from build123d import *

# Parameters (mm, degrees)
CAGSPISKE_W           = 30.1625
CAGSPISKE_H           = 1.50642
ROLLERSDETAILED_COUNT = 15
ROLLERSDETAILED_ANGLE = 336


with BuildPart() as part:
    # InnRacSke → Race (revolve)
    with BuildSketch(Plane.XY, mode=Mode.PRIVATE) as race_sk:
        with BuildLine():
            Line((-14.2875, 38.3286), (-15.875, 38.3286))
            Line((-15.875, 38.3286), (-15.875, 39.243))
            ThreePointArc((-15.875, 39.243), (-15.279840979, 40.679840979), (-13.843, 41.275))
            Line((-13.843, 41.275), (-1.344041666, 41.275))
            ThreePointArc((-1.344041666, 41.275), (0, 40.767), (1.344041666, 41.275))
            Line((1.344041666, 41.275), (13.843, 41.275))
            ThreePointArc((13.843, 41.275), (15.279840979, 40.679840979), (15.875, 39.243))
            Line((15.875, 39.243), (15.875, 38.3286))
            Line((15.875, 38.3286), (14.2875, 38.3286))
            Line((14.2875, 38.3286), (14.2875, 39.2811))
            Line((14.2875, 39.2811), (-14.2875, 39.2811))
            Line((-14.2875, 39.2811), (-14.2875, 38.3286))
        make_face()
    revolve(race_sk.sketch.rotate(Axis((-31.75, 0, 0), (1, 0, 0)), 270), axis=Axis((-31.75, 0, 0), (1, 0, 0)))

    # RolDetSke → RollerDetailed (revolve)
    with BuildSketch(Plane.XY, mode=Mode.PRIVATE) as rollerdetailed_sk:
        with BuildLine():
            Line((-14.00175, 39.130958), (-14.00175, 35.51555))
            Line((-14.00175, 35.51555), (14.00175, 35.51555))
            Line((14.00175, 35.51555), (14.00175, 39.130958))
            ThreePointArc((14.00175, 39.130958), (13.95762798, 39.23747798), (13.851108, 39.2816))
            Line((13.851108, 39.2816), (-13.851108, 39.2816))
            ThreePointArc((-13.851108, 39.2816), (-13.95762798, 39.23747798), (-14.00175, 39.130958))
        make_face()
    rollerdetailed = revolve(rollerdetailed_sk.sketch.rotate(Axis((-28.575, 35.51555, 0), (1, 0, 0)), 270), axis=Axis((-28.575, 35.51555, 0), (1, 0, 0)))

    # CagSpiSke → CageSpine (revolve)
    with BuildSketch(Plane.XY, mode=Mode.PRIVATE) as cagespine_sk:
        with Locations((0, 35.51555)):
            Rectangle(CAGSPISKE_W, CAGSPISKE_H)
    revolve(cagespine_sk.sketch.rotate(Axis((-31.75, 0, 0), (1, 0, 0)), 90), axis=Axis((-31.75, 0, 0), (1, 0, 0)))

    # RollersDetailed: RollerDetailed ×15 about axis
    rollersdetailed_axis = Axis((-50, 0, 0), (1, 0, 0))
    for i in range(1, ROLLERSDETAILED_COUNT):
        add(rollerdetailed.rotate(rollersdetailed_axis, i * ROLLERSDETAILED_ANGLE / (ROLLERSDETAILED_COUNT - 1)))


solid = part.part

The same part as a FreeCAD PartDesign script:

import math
import FreeCAD as App
import Part
import Sketcher
Q = App.Units.Quantity

doc = App.newDocument("Part")
params = doc.addObject("Spreadsheet::Sheet", "Params")
for row, (alias, value) in enumerate([
    ("sketch1_radius", "0.08 in"),
    ("sketch1_width", "0.0625 in"),
    ("sketch1_width2", "1.125 in"),
    ("sketch1_height", "0.036 in"),
    ("revolution_angle", "360 deg"),
    ("revolution2_angle", "360 deg"),
    ("sketch3_width", "1.1875 in"),
    ("revolution3_angle", "360 deg"),
], start=1):
    params.set(f"A{row}", alias)
    params.set(f"B{row}", "=" + value)
    params.setAlias(f"B{row}", alias)

body = doc.addObject("PartDesign::Body", "Body")

sketch1 = doc.addObject("Sketcher::SketchObject", "Sketch")
body.addObject(sketch1)
sketch1.AttachmentSupport = (doc.XY_Plane, [""])
sketch1.MapMode = "FlatFace"
sketch1.addGeometry(Part.LineSegment(App.Vector(-15.9, 38.3, 0), App.Vector(-14.3, 38.3, 0)), False)
sketch1.addGeometry(Part.LineSegment(App.Vector(-14.3, 38.3, 0), App.Vector(-14.3, 39.3, 0)), False)
sketch1.addGeometry(Part.LineSegment(App.Vector(-14.3, 39.3, 0), App.Vector(14.3, 39.3, 0)), False)
sketch1.addGeometry(Part.LineSegment(App.Vector(14.3, 39.3, 0), App.Vector(14.3, 38.3, 0)), False)
sketch1.addGeometry(Part.LineSegment(App.Vector(14.3, 38.3, 0), App.Vector(15.9, 38.3, 0)), False)
sketch1.addGeometry(Part.LineSegment(App.Vector(15.9, 38.3, 0), App.Vector(15.9, 39.2, 0)), False)
sketch1.addGeometry(Part.ArcOfCircle(Part.Circle(App.Vector(13.8, 39.2, 0), App.Vector(0, 0, 1), 2), math.radians(0), math.radians(90)), False)
sketch1.addGeometry(Part.LineSegment(App.Vector(13.8, 41.3, 0), App.Vector(1.3, 41.3, 0)), False)
sketch1.addGeometry(Part.ArcOfCircle(Part.Circle(App.Vector(0, 42.8, 0), App.Vector(0, 0, 1), 2), math.radians(-131), math.radians(-49)), False)
sketch1.addGeometry(Part.LineSegment(App.Vector(-1.3, 41.3, 0), App.Vector(-13.8, 41.3, 0)), False)
sketch1.addGeometry(Part.ArcOfCircle(Part.Circle(App.Vector(-13.8, 39.2, 0), App.Vector(0, 0, 1), 2), math.radians(90), math.radians(180)), False)
sketch1.addGeometry(Part.LineSegment(App.Vector(-15.9, 39.2, 0), App.Vector(-15.9, 38.3, 0)), False)
sketch1.addConstraint(Sketcher.Constraint("Coincident", 0, 2, 1, 1))
sketch1.addConstraint(Sketcher.Constraint("Coincident", 1, 2, 2, 1))
sketch1.addConstraint(Sketcher.Constraint("Coincident", 2, 2, 3, 1))
sketch1.addConstraint(Sketcher.Constraint("Coincident", 3, 2, 4, 1))
sketch1.addConstraint(Sketcher.Constraint("Coincident", 4, 2, 5, 1))
sketch1.addConstraint(Sketcher.Constraint("Tangent", 5, 2, 6, 1))
sketch1.addConstraint(Sketcher.Constraint("Tangent", 6, 2, 7, 1))
sketch1.addConstraint(Sketcher.Constraint("Coincident", 7, 2, 8, 2))
sketch1.addConstraint(Sketcher.Constraint("Coincident", 8, 1, 9, 1))
sketch1.addConstraint(Sketcher.Constraint("Tangent", 9, 2, 10, 1))
sketch1.addConstraint(Sketcher.Constraint("Tangent", 10, 2, 11, 1))
sketch1.addConstraint(Sketcher.Constraint("Coincident", 11, 2, 0, 1))
sketch1.addConstraint(Sketcher.Constraint("Horizontal", 0))
sketch1.addConstraint(Sketcher.Constraint("Vertical", 1))
sketch1.addConstraint(Sketcher.Constraint("Horizontal", 2))
sketch1.addConstraint(Sketcher.Constraint("Vertical", 3))
sketch1.addConstraint(Sketcher.Constraint("Horizontal", 4))
sketch1.addConstraint(Sketcher.Constraint("Vertical", 5))
sketch1.addConstraint(Sketcher.Constraint("Horizontal", 7))
sketch1.addConstraint(Sketcher.Constraint("Horizontal", 9))
sketch1.addConstraint(Sketcher.Constraint("Vertical", 11))
sketch1.addConstraint(Sketcher.Constraint("Equal", 6, 8))
sketch1.addConstraint(Sketcher.Constraint("Equal", 8, 10))
sketch1.addConstraint(Sketcher.Constraint("Symmetric", 6, 3, 10, 3, -2))
sketch1.addConstraint(Sketcher.Constraint("Symmetric", 0, 2, 3, 2, -2))
sketch1.addConstraint(Sketcher.Constraint("PointOnObject", 8, 3, -2))
sketch1.addConstraint(Sketcher.Constraint("Radius", 6, Q("0.08 in")))
sketch1.addConstraint(Sketcher.Constraint("DistanceX", 0, 1, 0, 2, Q("0.0625 in")))
sketch1.addConstraint(Sketcher.Constraint("DistanceX", 2, 1, 2, 2, Q("1.125 in")))
sketch1.addConstraint(Sketcher.Constraint("DistanceY", 5, 1, 5, 2, Q("0.036 in")))
sketch1.addConstraint(Sketcher.Constraint("DistanceY", 6, 3, 8, 3, Q("0.14 in")))
sketch1.addConstraint(Sketcher.Constraint("DistanceY", 1, 1, 1, 2, Q("0.0375 in")))
sketch1.addConstraint(Sketcher.Constraint("DistanceY", -1, 1, 6, 3, Q("1.545 in")))
sketch1.setExpression("Constraints[26]", "Params.sketch1_radius")
sketch1.setExpression("Constraints[27]", "Params.sketch1_width")
sketch1.setExpression("Constraints[28]", "Params.sketch1_width2")
sketch1.setExpression("Constraints[29]", "Params.sketch1_height")
revolution = doc.addObject("PartDesign::Revolution", "Revolution")
body.addObject(revolution)
revolution.Profile = sketch1
revolution.ReferenceAxis = (sketch1, ["H_Axis"])
revolution.setExpression("Angle", "Params.revolution_angle")

sketch2 = doc.addObject("Sketcher::SketchObject", "Sketch001")
body.addObject(sketch2)
sketch2.AttachmentSupport = (doc.XY_Plane, [""])
sketch2.MapMode = "FlatFace"
sketch2.addGeometry(Part.LineSegment(App.Vector(-14, 39.13, 0), App.Vector(-14, 35.52, 0)), False)
sketch2.addGeometry(Part.LineSegment(App.Vector(-14, 35.52, 0), App.Vector(14, 35.52, 0)), False)
sketch2.addGeometry(Part.LineSegment(App.Vector(14, 35.52, 0), App.Vector(14, 39.13, 0)), False)
sketch2.addGeometry(Part.ArcOfCircle(Part.Circle(App.Vector(13.85, 39.13, 0), App.Vector(0, 0, 1), 0.15), math.radians(0), math.radians(90)), False)
sketch2.addGeometry(Part.LineSegment(App.Vector(13.85, 39.28, 0), App.Vector(-13.85, 39.28, 0)), False)
sketch2.addGeometry(Part.ArcOfCircle(Part.Circle(App.Vector(-13.85, 39.13, 0), App.Vector(0, 0, 1), 0.15), math.radians(90), math.radians(180)), False)
sketch2.addGeometry(Part.LineSegment(App.Vector(-14, 35.52, 0), App.Vector(14, 35.52, 0)), True)
sketch2.addConstraint(Sketcher.Constraint("Coincident", 0, 2, 1, 1))
sketch2.addConstraint(Sketcher.Constraint("Coincident", 1, 2, 2, 1))
sketch2.addConstraint(Sketcher.Constraint("Tangent", 2, 2, 3, 1))
sketch2.addConstraint(Sketcher.Constraint("Tangent", 3, 2, 4, 1))
sketch2.addConstraint(Sketcher.Constraint("Tangent", 4, 2, 5, 1))
sketch2.addConstraint(Sketcher.Constraint("Tangent", 5, 2, 0, 1))
sketch2.addConstraint(Sketcher.Constraint("Vertical", 0))
sketch2.addConstraint(Sketcher.Constraint("Horizontal", 1))
sketch2.addConstraint(Sketcher.Constraint("Vertical", 2))
sketch2.addConstraint(Sketcher.Constraint("Horizontal", 4))
sketch2.addConstraint(Sketcher.Constraint("Horizontal", 6))
sketch2.addConstraint(Sketcher.Constraint("Coincident", 6, 1, 0, 2))
sketch2.addConstraint(Sketcher.Constraint("Equal", 3, 5))
sketch2.addConstraint(Sketcher.Constraint("Vertical", 2, 2, 6, 2))
sketch2.addConstraint(Sketcher.Constraint("DistanceX", 1, 1, 1, 2, Q("1.1025 in")))
sketch2.addConstraint(Sketcher.Constraint("Radius", 3, Q("0.150642 mm")))
sketch2.addConstraint(Sketcher.Constraint("DistanceY", 0, 2, 0, 1, Q("3.615408 mm")))
sketch2.addConstraint(Sketcher.Constraint("DistanceY", -1, 1, 3, 2, Q("39.2816 mm")))
sketch2.addConstraint(Sketcher.Constraint("DistanceX", -1, 1, 3, 3, Q("13.851108 mm")))
revolution2 = doc.addObject("PartDesign::Revolution", "Revolution001")
body.addObject(revolution2)
revolution2.Profile = sketch2
revolution2.ReferenceAxis = (sketch2, ["Axis0"])
revolution2.setExpression("Angle", "Params.revolution2_angle")

sketch3 = doc.addObject("Sketcher::SketchObject", "Sketch002")
body.addObject(sketch3)
sketch3.AttachmentSupport = (doc.XY_Plane, [""])
sketch3.MapMode = "FlatFace"
sketch3.addGeometry(Part.LineSegment(App.Vector(-15.1, 36.3, 0), App.Vector(-15.1, 34.8, 0)), False)
sketch3.addGeometry(Part.LineSegment(App.Vector(-15.1, 34.8, 0), App.Vector(15.1, 34.8, 0)), False)
sketch3.addGeometry(Part.LineSegment(App.Vector(15.1, 34.8, 0), App.Vector(15.1, 36.3, 0)), False)
sketch3.addGeometry(Part.LineSegment(App.Vector(15.1, 36.3, 0), App.Vector(-15.1, 36.3, 0)), False)
sketch3.addConstraint(Sketcher.Constraint("Coincident", 0, 2, 1, 1))
sketch3.addConstraint(Sketcher.Constraint("Coincident", 1, 2, 2, 1))
sketch3.addConstraint(Sketcher.Constraint("Coincident", 2, 2, 3, 1))
sketch3.addConstraint(Sketcher.Constraint("Coincident", 3, 2, 0, 1))
sketch3.addConstraint(Sketcher.Constraint("Vertical", 0))
sketch3.addConstraint(Sketcher.Constraint("Horizontal", 1))
sketch3.addConstraint(Sketcher.Constraint("Vertical", 2))
sketch3.addConstraint(Sketcher.Constraint("Horizontal", 3))
sketch3.addConstraint(Sketcher.Constraint("DistanceX", 1, 1, 1, 2, Q("1.1875 in")))
sketch3.addConstraint(Sketcher.Constraint("DistanceX", 0, 2, -1, 1, Q("0.59375 in")))
sketch3.addConstraint(Sketcher.Constraint("DistanceY", 0, 2, 0, 1, Q("1.50642 mm")))
sketch3.addConstraint(Sketcher.Constraint("DistanceY", -1, 1, 0, 2, Q("34.76234 mm")))
sketch3.setExpression("Constraints[8]", "Params.sketch3_width")
revolution3 = doc.addObject("PartDesign::Revolution", "Revolution002")
body.addObject(revolution3)
revolution3.Profile = sketch3
revolution3.ReferenceAxis = (sketch3, ["H_Axis"])
revolution3.setExpression("Angle", "Params.revolution3_angle")
doc.recompute()

polarpattern = doc.addObject("PartDesign::PolarPattern", "PolarPattern")
body.addObject(polarpattern)
polarpattern.Originals = [revolution2]
polarpattern.Axis = (doc.X_Axis, [""])
polarpattern.Angle = 360
polarpattern.Occurrences = 15
body.Tip = polarpattern

doc.recompute()
